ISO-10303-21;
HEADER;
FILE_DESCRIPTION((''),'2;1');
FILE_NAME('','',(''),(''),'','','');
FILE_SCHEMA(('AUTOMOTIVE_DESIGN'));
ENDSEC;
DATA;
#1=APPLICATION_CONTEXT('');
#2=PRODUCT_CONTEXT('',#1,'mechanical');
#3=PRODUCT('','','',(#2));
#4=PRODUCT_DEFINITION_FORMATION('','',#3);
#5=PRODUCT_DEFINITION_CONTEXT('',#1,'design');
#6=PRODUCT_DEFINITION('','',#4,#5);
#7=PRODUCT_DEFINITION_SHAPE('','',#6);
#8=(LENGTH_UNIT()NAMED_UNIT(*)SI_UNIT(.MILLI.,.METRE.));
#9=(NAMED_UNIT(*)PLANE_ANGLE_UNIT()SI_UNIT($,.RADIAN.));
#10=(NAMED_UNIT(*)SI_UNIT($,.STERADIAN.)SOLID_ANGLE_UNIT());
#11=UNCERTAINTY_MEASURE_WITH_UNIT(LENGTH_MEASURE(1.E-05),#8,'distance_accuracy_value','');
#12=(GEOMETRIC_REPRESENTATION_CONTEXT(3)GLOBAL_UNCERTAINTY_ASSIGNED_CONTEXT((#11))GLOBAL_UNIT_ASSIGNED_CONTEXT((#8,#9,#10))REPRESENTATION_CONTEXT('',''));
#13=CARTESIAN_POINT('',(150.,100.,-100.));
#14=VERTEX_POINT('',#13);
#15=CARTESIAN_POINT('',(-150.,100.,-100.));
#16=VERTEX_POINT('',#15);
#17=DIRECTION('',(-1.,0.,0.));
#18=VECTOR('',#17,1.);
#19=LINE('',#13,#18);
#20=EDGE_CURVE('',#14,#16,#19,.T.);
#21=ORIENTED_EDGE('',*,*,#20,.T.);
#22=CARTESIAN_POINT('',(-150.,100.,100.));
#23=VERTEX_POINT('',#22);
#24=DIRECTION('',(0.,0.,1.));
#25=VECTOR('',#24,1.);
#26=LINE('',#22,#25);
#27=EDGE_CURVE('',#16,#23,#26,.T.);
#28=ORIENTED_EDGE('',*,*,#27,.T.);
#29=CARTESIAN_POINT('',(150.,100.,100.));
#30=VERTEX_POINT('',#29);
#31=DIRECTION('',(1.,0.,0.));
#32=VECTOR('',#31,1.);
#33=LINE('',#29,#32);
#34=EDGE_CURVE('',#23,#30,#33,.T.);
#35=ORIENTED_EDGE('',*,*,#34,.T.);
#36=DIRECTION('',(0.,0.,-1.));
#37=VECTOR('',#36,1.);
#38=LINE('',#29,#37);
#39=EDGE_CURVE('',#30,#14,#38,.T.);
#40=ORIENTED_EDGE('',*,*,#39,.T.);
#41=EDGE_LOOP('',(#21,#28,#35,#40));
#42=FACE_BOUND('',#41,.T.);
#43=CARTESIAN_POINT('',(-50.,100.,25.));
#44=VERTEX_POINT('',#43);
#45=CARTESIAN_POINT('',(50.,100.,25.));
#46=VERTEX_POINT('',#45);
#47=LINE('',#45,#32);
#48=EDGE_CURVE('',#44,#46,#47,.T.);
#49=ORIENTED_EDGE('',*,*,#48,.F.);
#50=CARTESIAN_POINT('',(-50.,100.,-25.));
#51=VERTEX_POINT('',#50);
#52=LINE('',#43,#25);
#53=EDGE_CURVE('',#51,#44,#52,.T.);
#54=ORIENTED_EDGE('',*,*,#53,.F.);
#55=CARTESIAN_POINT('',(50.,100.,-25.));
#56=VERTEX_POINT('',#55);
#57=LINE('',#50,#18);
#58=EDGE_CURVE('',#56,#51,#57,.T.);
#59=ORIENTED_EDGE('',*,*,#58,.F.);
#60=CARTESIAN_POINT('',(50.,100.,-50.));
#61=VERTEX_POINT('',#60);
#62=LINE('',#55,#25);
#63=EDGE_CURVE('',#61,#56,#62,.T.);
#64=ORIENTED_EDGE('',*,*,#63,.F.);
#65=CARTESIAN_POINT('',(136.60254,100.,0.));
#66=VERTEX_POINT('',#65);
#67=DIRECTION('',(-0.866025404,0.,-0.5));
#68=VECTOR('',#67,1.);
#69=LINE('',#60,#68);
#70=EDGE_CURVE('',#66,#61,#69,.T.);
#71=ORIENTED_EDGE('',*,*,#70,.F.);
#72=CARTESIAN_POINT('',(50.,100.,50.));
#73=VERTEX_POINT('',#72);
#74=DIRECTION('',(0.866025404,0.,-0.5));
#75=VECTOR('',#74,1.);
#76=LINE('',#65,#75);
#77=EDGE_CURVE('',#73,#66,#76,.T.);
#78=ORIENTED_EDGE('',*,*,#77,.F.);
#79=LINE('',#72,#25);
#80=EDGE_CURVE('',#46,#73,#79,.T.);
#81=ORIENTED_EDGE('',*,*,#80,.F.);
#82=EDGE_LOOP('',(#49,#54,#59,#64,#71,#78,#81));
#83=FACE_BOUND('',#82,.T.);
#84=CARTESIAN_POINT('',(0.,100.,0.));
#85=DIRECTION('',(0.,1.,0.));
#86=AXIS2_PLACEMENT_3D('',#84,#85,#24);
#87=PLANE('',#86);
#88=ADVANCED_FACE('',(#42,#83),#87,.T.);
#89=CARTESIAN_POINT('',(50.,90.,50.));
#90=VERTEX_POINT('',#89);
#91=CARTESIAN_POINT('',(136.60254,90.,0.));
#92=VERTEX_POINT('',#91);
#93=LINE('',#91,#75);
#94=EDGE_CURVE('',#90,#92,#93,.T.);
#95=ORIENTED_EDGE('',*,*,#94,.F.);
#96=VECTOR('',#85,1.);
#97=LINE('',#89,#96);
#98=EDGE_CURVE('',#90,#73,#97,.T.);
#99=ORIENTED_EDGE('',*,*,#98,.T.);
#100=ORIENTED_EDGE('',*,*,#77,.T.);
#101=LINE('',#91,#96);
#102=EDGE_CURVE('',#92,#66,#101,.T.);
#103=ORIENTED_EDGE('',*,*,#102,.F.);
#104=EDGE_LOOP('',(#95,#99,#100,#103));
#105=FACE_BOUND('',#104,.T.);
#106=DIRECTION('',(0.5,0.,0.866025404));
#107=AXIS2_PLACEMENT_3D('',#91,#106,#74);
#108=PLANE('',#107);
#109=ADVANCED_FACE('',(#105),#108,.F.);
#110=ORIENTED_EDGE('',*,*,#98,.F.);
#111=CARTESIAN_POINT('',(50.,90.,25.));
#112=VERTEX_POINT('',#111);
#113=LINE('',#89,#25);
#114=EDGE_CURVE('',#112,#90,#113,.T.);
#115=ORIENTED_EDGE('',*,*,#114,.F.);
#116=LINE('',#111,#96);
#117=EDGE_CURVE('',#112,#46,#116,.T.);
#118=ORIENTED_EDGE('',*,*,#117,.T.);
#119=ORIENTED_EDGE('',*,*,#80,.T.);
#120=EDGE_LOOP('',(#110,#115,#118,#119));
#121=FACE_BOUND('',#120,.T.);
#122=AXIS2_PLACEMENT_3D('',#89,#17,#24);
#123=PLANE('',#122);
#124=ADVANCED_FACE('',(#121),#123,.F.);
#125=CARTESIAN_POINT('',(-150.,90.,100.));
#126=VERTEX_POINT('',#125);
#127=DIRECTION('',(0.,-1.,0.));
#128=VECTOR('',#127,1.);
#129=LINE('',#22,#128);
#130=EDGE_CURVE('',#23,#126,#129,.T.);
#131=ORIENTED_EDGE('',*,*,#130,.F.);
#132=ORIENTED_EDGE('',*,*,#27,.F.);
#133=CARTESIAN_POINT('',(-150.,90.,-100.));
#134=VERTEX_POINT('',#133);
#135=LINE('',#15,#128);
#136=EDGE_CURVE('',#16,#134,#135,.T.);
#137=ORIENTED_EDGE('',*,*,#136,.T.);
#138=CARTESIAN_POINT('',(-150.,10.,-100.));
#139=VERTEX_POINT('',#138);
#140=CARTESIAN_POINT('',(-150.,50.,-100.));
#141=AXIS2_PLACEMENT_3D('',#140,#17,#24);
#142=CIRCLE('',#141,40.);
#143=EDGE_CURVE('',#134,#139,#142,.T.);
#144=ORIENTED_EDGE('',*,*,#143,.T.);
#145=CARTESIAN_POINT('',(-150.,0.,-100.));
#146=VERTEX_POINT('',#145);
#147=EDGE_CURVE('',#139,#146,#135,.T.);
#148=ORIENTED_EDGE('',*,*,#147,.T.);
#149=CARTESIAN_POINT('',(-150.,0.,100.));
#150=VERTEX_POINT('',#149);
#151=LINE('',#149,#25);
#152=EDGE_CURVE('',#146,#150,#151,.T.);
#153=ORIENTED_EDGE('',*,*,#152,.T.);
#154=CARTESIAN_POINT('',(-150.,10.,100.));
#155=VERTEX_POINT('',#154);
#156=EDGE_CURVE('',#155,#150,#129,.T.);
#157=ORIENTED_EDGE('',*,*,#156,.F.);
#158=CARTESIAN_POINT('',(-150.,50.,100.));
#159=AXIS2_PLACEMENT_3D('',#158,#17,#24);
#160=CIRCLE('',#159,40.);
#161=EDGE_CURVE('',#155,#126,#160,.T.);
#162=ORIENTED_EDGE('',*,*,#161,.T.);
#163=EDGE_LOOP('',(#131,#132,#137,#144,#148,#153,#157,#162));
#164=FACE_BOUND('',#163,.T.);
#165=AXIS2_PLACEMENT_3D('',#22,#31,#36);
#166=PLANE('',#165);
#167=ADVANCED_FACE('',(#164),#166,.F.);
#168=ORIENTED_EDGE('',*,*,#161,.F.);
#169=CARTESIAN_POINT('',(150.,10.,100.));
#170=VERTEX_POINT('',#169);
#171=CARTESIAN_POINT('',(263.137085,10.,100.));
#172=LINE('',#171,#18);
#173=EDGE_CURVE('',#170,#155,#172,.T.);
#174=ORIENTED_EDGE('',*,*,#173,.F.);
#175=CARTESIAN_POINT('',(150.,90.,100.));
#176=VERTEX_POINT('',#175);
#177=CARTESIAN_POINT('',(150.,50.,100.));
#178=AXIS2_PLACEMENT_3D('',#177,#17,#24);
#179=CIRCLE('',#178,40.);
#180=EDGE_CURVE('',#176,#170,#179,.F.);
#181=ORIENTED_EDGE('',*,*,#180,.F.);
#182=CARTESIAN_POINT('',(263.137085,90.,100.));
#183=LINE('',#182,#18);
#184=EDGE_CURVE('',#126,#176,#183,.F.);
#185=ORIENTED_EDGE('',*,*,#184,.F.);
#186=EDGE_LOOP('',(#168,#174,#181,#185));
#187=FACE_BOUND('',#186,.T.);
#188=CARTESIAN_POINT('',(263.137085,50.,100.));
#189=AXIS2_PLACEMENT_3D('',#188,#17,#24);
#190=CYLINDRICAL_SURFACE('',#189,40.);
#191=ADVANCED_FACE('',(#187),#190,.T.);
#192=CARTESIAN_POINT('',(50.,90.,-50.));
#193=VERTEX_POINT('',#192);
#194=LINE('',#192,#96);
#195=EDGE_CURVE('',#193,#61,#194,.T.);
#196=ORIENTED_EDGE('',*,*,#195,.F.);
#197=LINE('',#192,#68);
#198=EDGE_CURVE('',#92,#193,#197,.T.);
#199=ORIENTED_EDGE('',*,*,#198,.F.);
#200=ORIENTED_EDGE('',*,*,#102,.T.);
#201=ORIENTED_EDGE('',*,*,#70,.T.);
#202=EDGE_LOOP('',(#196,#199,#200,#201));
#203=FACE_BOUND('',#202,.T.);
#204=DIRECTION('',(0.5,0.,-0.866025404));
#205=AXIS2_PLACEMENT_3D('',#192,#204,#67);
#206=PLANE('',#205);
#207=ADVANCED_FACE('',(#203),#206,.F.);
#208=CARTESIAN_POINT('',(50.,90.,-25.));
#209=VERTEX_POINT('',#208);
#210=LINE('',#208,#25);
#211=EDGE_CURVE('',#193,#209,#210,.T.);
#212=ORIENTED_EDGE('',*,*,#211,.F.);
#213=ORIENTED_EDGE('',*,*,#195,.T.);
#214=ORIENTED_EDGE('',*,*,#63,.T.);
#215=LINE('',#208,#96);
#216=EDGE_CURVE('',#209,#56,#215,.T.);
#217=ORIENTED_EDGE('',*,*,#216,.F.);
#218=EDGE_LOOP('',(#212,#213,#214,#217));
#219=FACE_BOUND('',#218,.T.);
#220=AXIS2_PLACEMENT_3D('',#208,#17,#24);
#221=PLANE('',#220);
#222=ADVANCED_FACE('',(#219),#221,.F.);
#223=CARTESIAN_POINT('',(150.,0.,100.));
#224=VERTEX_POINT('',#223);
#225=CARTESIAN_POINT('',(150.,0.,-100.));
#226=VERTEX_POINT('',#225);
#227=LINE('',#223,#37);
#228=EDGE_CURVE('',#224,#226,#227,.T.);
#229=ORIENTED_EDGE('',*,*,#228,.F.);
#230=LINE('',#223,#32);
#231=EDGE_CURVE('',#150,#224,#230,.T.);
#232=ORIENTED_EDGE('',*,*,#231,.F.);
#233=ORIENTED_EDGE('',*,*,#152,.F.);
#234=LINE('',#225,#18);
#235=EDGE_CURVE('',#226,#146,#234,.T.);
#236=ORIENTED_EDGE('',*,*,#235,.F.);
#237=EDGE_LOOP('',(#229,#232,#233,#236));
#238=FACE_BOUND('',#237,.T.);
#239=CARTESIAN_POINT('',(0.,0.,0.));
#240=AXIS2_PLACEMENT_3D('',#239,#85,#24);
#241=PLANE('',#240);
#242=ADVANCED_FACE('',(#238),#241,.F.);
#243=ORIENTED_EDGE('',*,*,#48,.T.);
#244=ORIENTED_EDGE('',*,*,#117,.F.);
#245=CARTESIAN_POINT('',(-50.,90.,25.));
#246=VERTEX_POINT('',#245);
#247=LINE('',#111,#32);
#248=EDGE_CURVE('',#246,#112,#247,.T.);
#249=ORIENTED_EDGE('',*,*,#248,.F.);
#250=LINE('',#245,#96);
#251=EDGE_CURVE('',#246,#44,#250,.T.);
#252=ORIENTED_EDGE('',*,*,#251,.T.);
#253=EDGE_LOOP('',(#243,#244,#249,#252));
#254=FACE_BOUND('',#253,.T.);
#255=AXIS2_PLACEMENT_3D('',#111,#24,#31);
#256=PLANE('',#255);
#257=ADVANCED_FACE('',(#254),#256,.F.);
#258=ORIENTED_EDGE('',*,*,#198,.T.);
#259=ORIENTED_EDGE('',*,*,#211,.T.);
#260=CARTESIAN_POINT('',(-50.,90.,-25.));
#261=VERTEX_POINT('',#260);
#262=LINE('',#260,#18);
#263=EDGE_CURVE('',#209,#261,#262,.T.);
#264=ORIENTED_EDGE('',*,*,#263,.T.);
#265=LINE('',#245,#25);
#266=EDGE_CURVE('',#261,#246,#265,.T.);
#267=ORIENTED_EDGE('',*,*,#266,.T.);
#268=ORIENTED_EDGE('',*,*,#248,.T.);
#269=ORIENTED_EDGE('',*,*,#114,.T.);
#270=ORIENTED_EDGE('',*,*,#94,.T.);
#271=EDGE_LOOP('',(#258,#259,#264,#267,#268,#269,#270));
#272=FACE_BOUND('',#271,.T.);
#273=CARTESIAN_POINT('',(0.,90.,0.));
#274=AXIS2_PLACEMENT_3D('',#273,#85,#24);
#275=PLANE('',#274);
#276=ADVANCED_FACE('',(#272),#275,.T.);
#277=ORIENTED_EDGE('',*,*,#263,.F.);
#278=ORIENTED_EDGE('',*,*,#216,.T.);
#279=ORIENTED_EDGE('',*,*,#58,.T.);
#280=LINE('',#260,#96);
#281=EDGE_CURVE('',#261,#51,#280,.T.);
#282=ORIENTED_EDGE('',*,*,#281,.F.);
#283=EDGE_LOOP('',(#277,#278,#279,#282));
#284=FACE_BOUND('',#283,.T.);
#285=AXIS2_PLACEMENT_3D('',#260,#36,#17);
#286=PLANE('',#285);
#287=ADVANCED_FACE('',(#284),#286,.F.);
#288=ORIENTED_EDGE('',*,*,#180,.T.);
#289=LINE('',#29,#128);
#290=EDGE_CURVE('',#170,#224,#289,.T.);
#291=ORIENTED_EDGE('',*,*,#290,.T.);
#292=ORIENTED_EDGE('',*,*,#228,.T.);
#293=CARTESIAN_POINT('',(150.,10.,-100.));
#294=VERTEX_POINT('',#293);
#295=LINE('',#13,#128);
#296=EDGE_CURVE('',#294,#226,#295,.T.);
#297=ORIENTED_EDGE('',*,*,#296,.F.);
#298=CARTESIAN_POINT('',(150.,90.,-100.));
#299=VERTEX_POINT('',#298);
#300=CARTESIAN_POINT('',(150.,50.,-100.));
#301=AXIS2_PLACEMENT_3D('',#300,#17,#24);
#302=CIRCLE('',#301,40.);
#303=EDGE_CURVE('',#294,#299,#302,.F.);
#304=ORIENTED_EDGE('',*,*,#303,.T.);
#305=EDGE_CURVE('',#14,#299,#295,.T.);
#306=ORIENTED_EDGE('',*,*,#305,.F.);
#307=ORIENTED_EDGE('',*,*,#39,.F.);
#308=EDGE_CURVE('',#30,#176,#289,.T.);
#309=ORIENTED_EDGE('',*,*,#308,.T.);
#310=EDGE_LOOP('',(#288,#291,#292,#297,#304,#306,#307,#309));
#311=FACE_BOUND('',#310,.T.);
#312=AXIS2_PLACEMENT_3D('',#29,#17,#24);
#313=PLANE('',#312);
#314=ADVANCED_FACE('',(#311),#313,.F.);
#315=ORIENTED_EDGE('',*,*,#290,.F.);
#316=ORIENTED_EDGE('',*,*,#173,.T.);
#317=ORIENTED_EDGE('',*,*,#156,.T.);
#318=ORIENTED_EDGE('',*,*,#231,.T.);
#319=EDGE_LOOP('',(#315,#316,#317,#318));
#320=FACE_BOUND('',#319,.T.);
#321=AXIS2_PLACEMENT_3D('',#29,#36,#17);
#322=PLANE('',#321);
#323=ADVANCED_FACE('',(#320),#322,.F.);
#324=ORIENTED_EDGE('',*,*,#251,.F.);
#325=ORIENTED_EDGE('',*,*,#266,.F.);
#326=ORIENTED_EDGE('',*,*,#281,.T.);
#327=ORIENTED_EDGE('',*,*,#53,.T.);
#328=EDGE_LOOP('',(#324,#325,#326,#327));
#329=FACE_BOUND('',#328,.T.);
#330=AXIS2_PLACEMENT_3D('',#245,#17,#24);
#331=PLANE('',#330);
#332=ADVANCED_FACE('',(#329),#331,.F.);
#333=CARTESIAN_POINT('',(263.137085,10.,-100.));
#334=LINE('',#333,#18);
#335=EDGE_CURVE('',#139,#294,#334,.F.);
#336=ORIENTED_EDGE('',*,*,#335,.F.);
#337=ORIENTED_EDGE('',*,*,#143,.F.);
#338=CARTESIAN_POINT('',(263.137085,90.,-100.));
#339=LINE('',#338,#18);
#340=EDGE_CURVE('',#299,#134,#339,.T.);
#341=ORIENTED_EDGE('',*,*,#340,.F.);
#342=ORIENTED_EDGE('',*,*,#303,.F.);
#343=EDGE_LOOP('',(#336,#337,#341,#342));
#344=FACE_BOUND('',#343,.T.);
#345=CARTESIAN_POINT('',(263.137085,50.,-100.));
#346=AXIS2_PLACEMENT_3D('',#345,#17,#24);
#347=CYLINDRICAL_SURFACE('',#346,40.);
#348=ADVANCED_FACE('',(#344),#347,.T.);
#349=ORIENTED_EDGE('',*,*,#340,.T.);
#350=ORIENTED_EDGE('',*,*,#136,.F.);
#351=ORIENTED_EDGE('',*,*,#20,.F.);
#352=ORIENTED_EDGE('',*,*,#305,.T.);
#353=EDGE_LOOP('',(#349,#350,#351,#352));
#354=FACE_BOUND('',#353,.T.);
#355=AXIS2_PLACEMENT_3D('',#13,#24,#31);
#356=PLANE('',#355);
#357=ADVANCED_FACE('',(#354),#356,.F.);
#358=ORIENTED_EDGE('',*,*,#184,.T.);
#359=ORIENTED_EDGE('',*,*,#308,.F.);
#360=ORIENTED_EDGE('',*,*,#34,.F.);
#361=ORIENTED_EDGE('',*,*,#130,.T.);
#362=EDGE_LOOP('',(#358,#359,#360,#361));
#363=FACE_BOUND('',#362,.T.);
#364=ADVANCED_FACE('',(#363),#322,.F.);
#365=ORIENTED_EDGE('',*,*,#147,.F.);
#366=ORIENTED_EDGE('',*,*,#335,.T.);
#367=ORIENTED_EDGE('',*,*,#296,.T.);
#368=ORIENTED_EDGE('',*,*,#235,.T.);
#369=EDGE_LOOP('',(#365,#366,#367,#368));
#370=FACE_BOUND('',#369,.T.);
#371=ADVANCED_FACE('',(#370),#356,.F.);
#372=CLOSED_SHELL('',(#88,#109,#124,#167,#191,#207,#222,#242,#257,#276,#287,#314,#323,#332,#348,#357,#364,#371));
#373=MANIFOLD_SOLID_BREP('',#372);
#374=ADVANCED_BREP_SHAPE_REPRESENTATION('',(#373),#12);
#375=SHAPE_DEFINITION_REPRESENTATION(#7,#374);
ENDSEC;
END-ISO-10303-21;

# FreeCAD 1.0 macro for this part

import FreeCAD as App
import Part
import Sketcher

V = App.Vector
Q = App.Units.Quantity


def add_polygon(sketch, points):
    """Adds a closed chain of lines whose ends are joined by coincident constraints."""
    first, n = sketch.GeometryCount, len(points)
    for a, b in zip(points, points[1:] + points[:1]):
        sketch.addGeometry(Part.LineSegment(App.Vector(*a, 0), App.Vector(*b, 0)), False)
    for i in range(n):
        sketch.addConstraint(Sketcher.Constraint("Coincident", first + i, 2, first + (i + 1) % n, 1))

doc = App.newDocument("Part")
body = doc.addObject("PartDesign::Body", "Body")

# Sketch on XZ plane
sketch1 = doc.addObject("Sketcher::SketchObject", "Sketch")
body.addObject(sketch1)
sketch1.AttachmentSupport = (doc.XZ_Plane, [""])
sketch1.MapMode = "FlatFace"
add_polygon(sketch1, [(-150, -100), (-150, 100), (150, 100), (150, -100)])  # lines 0-3
sketch1.addConstraint([
    Sketcher.Constraint("Vertical", 0),
    Sketcher.Constraint("Horizontal", 1),
    Sketcher.Constraint("Vertical", 2),
    Sketcher.Constraint("Horizontal", 3),
    Sketcher.Constraint("Symmetric", 0, 2, 2, 2, -1, 1),
    Sketcher.Constraint("DistanceX", 1, 1, 1, 2, 300.0),
    Sketcher.Constraint("DistanceY", 0, 1, 0, 2, 200.0),
])
pad1 = doc.addObject("PartDesign::Pad", "Pad")
body.addObject(pad1)
pad1.Profile = sketch1
pad1.Length = 100
pad1.Reversed = True

# Sketch on YZ plane
sketch2 = doc.addObject("Sketcher::SketchObject", "Sketch001")
body.addObject(sketch2)
sketch2.AttachmentSupport = (doc.YZ_Plane, [""])
sketch2.MapMode = "FlatFace"
sketch2.AttachmentOffset = App.Placement(V(0, 0, -150), App.Rotation())
sketch2.addGeometry([
    Part.Circle(V(50, 100, 0), V(0, 0, 1), 40),
    Part.Circle(V(50, -100, 0), V(0, 0, 1), 40),
], False)
sketch2.addConstraint([
    Sketcher.Constraint("Equal", 0, 1),
    Sketcher.Constraint("Symmetric", 0, 3, 1, 3, -1),
    Sketcher.Constraint("Diameter", 0, 80.0),
    Sketcher.Constraint("DistanceX", -1, 1, 0, 3, 50.0),
    Sketcher.Constraint("DistanceY", -1, 1, 0, 3, 100.0),
])
pad2 = doc.addObject("PartDesign::Pad", "Pad001")
body.addObject(pad2)
pad2.Profile = sketch2
pad2.Length = 300

# Sketch on XZ plane
sketch3 = doc.addObject("Sketcher::SketchObject", "Sketch002")
body.addObject(sketch3)
sketch3.AttachmentSupport = (doc.XZ_Plane, [""])
sketch3.MapMode = "FlatFace"
sketch3.AttachmentOffset = App.Placement(V(0, 0, -100), App.Rotation())
add_polygon(sketch3, [(50, -50), (50, -25), (-50, -25), (-50, 25), (50, 25), (50, 50), (137, 0)])  # lines 0-6
sketch3.addConstraint([
    Sketcher.Constraint("Vertical", 0),
    Sketcher.Constraint("Horizontal", 1),
    Sketcher.Constraint("Vertical", 2),
    Sketcher.Constraint("Horizontal", 3),
    Sketcher.Constraint("Vertical", 4),
    Sketcher.Constraint("Symmetric", 0, 2, 2, 2, -1, 1),
    Sketcher.Constraint("Symmetric", 4, 2, 6, 2, -1),
    Sketcher.Constraint("PointOnObject", 5, 2, -1),
    Sketcher.Constraint("DistanceX", 1, 2, 1, 1, 100.0),
    Sketcher.Constraint("DistanceY", 0, 1, 0, 2, 25.0),
    Sketcher.Constraint("DistanceY", 2, 1, 2, 2, 50.0),
    Sketcher.Constraint("Angle", 5, Q("-30 deg")),
])
pocket1 = doc.addObject("PartDesign::Pocket", "Pocket")
body.addObject(pocket1)
pocket1.Profile = sketch3
pocket1.Length = 10
pocket1.Reversed = True

doc.recompute()
